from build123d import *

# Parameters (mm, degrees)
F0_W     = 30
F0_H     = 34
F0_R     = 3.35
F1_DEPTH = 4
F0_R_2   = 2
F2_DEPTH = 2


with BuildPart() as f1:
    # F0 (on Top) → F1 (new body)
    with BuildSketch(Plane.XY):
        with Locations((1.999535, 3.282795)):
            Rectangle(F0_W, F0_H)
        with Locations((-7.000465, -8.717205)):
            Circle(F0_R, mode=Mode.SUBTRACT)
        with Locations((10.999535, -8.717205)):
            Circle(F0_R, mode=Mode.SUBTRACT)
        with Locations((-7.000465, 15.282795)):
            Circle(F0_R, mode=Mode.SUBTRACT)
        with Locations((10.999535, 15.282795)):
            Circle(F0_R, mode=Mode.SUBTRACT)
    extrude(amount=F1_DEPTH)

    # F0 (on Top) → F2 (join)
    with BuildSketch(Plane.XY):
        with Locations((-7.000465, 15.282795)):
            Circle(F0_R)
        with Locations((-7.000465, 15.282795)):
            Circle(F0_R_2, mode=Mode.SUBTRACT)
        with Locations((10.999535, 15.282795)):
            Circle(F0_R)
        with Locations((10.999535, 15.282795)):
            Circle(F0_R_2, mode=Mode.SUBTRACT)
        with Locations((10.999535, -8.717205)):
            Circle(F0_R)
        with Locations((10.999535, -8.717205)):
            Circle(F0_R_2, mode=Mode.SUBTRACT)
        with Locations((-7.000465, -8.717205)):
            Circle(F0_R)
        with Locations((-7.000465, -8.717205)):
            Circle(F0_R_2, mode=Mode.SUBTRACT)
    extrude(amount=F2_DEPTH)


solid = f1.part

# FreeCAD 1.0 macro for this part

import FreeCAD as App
import Part
import Sketcher
Q = App.Units.Quantity


def add_polygon(sketch, points):
    """Adds a closed chain of lines whose ends are joined by coincident constraints."""
    first, n = sketch.GeometryCount, len(points)
    for a, b in zip(points, points[1:] + points[:1]):
        sketch.addGeometry(Part.LineSegment(App.Vector(*a, 0), App.Vector(*b, 0)), False)
    for i in range(n):
        sketch.addConstraint(Sketcher.Constraint("Coincident", first + i, 2, first + (i + 1) % n, 1))

doc = App.newDocument("Part")
body = doc.addObject("PartDesign::Body", "Body")

# Sketch on XY plane
sketch1 = body.newObject("Sketcher::SketchObject", "Sketch")
sketch1.AttachmentSupport = (doc.getObject("XY_Plane"), [""])
sketch1.MapMode = "FlatFace"
add_polygon(sketch1, [(-13.000465, 20.282795), (-13.000465, -13.717205), (16.999535, -13.717205), (16.999535, 20.282795)])  # lines 0-3
sketch1.addGeometry(Part.Circle(App.Vector(-7.000465, -8.717205, 0), App.Vector(0, 0, 1), 3.35), False)  # 4
sketch1.addGeometry(Part.Circle(App.Vector(10.999535, -8.717205, 0), App.Vector(0, 0, 1), 3.35), False)  # 5
sketch1.addGeometry(Part.Circle(App.Vector(-7.000465, 15.282795, 0), App.Vector(0, 0, 1), 3.35), False)  # 6
sketch1.addGeometry(Part.Circle(App.Vector(10.999535, 15.282795, 0), App.Vector(0, 0, 1), 3.35), False)  # 7
sketch1.addConstraint([
    Sketcher.Constraint("Vertical", 0),
    Sketcher.Constraint("Horizontal", 1),
    Sketcher.Constraint("Vertical", 2),
    Sketcher.Constraint("Horizontal", 3),
    Sketcher.Constraint("Equal", 4, 5),
    Sketcher.Constraint("Equal", 5, 6),
    Sketcher.Constraint("Equal", 6, 7),
    Sketcher.Constraint("Horizontal", 4, 3, 5, 3),
    Sketcher.Constraint("Horizontal", 6, 3, 7, 3),
    Sketcher.Constraint("Vertical", 4, 3, 6, 3),
    Sketcher.Constraint("Vertical", 5, 3, 7, 3),
    Sketcher.Constraint("Diameter", 4, Q("6.7 mm")),
    Sketcher.Constraint("DistanceX", 1, 1, 1, 2, Q("30 mm")),
    Sketcher.Constraint("DistanceY", 0, 2, 0, 1, Q("34 mm")),
    Sketcher.Constraint("DistanceX", 4, 3, 5, 3, Q("18 mm")),
    Sketcher.Constraint("DistanceY", 4, 3, 6, 3, Q("24 mm")),
    Sketcher.Constraint("DistanceX", 0, 2, 4, 3, Q("6 mm")),
    Sketcher.Constraint("DistanceY", 0, 2, 4, 3, Q("5 mm")),
    Sketcher.Constraint("DistanceX", 4, 3, -1, 1, Q("7.000465 mm")),
    Sketcher.Constraint("DistanceY", 4, 3, -1, 1, Q("8.717205 mm")),
])
pad1 = body.newObject("PartDesign::Pad", "Pad")
pad1.Profile = sketch1
pad1.Length = 4

# Sketch on XY plane
sketch2 = body.newObject("Sketcher::SketchObject", "Sketch001")
sketch2.AttachmentSupport = (doc.getObject("XY_Plane"), [""])
sketch2.MapMode = "FlatFace"
sketch2.addGeometry([
    Part.Circle(App.Vector(-7.000465, 15.282795, 0), App.Vector(0, 0, 1), 3.35),  # 0
    Part.Circle(App.Vector(-7.000465, 15.282795, 0), App.Vector(0, 0, 1), 2),  # 1
    Part.Circle(App.Vector(10.999535, 15.282795, 0), App.Vector(0, 0, 1), 3.35),  # 2
    Part.Circle(App.Vector(10.999535, 15.282795, 0), App.Vector(0, 0, 1), 2),  # 3
    Part.Circle(App.Vector(10.999535, -8.717205, 0), App.Vector(0, 0, 1), 3.35),  # 4
    Part.Circle(App.Vector(10.999535, -8.717205, 0), App.Vector(0, 0, 1), 2),  # 5
    Part.Circle(App.Vector(-7.000465, -8.717205, 0), App.Vector(0, 0, 1), 3.35),  # 6
    Part.Circle(App.Vector(-7.000465, -8.717205, 0), App.Vector(0, 0, 1), 2),  # 7
], False)
sketch2.addConstraint([
    Sketcher.Constraint("Coincident", 1, 3, 0, 3),
    Sketcher.Constraint("Coincident", 3, 3, 2, 3),
    Sketcher.Constraint("Coincident", 5, 3, 4, 3),
    Sketcher.Constraint("Coincident", 7, 3, 6, 3),
    Sketcher.Constraint("Equal", 0, 2),
    Sketcher.Constraint("Equal", 1, 3),
    Sketcher.Constraint("Equal", 2, 4),
    Sketcher.Constraint("Equal", 3, 5),
    Sketcher.Constraint("Equal", 4, 6),
    Sketcher.Constraint("Equal", 5, 7),
    Sketcher.Constraint("Horizontal", 1, 3, 2, 3),
    Sketcher.Constraint("Horizontal", 5, 3, 6, 3),
    Sketcher.Constraint("Vertical", 3, 3, 4, 3),
    Sketcher.Constraint("Vertical", 1, 3, 6, 3),
    Sketcher.Constraint("Diameter", 1, Q("4 mm")),
    Sketcher.Constraint("Diameter", 0, Q("6.7 mm")),
    Sketcher.Constraint("DistanceX", 0, 3, 2, 3, Q("18 mm")),
    Sketcher.Constraint("DistanceY", 4, 3, 2, 3, Q("24 mm")),
    Sketcher.Constraint("DistanceX", 0, 3, -1, 1, Q("7.000465 mm")),
    Sketcher.Constraint("DistanceY", -1, 1, 0, 3, Q("15.282795 mm")),
])
pad2 = body.newObject("PartDesign::Pad", "Pad001")
pad2.Profile = sketch2
pad2.Length = 2

doc.recompute()
